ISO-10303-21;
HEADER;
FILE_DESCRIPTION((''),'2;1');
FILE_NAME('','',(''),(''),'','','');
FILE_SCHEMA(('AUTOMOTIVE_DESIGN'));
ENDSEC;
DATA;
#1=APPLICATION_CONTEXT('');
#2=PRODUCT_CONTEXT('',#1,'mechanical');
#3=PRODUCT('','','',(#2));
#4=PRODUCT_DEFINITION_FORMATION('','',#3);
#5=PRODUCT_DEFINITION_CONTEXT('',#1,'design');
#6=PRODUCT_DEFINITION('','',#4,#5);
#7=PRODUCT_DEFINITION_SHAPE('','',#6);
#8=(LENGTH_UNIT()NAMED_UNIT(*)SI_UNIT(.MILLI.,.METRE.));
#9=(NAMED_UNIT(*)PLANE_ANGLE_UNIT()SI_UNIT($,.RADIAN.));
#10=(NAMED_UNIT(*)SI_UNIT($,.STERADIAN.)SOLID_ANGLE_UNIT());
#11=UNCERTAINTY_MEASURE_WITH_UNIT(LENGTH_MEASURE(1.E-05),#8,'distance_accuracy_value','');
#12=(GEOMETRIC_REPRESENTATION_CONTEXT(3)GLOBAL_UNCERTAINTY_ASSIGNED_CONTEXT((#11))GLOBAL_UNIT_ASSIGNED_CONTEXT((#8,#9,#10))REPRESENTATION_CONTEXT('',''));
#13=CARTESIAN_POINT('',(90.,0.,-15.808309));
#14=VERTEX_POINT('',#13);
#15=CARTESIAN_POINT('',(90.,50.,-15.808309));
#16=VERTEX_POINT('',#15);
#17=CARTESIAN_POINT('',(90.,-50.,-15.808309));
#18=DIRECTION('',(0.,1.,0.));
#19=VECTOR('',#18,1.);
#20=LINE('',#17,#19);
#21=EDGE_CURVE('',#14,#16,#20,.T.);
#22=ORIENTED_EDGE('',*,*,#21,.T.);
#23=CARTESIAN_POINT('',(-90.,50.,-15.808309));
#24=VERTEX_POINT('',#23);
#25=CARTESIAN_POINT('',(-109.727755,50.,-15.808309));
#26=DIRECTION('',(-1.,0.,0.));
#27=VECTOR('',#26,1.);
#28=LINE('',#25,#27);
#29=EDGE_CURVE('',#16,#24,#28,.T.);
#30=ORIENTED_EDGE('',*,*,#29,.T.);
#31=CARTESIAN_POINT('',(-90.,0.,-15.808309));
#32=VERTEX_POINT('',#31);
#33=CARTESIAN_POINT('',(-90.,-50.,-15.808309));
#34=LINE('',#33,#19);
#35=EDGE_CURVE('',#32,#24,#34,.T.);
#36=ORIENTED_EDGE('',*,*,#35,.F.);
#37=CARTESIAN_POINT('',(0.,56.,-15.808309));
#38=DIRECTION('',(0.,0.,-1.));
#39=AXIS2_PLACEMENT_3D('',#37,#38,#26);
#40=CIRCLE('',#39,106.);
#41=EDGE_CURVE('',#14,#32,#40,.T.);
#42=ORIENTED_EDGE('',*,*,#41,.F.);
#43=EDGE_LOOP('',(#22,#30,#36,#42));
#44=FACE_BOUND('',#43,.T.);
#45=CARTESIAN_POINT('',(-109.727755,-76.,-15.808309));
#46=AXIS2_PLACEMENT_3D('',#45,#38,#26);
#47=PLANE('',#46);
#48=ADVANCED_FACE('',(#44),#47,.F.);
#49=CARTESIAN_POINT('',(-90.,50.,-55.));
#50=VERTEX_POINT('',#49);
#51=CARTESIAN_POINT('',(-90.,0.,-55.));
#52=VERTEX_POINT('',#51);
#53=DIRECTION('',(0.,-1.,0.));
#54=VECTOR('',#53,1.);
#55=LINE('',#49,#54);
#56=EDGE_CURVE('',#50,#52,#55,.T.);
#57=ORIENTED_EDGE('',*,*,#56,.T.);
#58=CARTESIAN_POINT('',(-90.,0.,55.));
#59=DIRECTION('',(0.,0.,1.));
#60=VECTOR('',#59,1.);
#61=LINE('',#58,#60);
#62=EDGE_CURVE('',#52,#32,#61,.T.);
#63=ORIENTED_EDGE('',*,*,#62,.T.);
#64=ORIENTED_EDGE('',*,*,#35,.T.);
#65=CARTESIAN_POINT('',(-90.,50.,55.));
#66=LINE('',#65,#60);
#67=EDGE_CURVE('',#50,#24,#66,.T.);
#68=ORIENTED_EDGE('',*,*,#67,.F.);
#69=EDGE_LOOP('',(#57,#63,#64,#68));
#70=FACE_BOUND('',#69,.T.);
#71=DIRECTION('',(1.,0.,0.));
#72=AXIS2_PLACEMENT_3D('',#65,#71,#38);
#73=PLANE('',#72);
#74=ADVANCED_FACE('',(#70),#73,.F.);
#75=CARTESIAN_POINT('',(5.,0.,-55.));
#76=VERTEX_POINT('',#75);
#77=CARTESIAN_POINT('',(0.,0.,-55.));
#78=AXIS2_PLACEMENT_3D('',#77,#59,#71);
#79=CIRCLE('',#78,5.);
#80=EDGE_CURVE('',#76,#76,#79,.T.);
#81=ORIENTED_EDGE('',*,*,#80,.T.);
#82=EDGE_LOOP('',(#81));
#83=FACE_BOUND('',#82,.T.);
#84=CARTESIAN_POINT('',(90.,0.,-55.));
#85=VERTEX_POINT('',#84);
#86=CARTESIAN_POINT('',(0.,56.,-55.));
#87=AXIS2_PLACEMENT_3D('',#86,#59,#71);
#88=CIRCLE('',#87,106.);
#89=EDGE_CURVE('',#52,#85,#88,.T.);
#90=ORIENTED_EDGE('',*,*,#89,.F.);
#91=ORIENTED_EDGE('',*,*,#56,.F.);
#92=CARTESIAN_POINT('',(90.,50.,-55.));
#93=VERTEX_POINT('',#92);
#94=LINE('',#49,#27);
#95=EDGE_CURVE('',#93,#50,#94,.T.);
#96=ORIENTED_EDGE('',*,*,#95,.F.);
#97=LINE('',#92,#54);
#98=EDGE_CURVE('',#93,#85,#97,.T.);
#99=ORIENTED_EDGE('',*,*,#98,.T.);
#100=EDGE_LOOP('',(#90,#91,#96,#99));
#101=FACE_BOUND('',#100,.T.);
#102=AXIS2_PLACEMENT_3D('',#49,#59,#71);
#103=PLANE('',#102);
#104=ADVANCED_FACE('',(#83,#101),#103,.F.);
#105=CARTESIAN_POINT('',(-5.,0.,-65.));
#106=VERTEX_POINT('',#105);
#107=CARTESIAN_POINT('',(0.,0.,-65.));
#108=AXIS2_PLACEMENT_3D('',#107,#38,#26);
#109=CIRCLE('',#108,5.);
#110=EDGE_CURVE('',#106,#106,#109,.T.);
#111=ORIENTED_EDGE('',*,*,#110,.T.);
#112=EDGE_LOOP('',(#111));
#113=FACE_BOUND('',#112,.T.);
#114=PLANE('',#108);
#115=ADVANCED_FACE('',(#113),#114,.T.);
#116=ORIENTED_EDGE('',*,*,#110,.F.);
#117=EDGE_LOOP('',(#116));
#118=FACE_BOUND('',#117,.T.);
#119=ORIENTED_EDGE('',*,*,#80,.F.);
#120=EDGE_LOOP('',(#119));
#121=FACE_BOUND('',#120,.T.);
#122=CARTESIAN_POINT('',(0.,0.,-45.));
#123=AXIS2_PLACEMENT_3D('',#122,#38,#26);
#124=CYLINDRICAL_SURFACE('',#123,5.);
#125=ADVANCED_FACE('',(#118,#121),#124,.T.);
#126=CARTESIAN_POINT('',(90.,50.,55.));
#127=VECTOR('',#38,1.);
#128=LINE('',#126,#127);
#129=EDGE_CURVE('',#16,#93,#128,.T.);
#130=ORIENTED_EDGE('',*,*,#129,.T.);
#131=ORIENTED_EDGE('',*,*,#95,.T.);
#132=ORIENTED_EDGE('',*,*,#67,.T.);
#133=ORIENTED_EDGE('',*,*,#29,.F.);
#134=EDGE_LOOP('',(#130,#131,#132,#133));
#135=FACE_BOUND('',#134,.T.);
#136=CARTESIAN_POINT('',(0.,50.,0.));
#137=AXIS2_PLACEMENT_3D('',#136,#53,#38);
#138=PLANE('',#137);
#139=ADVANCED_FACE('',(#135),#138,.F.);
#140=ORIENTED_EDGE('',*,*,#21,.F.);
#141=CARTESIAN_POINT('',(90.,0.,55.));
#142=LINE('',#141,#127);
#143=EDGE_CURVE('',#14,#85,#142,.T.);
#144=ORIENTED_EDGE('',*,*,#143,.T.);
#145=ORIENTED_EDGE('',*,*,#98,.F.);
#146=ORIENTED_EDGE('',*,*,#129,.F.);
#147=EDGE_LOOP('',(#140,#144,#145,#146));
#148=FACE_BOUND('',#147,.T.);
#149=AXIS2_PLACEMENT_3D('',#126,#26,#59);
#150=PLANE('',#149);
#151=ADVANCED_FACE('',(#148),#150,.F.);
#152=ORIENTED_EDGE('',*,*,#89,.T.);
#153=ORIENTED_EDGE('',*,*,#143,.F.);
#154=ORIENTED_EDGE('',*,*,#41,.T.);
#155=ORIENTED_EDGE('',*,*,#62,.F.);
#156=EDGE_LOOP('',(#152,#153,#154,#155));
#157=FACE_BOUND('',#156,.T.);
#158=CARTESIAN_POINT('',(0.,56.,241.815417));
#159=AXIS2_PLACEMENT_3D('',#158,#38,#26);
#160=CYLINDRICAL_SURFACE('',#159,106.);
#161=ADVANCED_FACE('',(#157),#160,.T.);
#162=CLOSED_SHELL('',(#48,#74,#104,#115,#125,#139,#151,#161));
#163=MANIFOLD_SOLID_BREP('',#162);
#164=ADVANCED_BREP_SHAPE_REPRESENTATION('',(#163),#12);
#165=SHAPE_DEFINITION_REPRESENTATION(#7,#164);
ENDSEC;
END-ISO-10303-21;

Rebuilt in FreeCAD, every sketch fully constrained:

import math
import FreeCAD as App
import Part
import Sketcher
Q = App.Units.Quantity

doc = App.newDocument("Part")
body = doc.addObject("PartDesign::Body", "Body")

# Sketch on XZ plane
sketch1 = body.newObject("Sketcher::SketchObject", "Sketch")
sketch1.AttachmentSupport = (doc.getObject("XZ_Plane"), [""])
sketch1.MapMode = "FlatFace"
sketch1.addGeometry([
    Part.LineSegment(App.Vector(-90, -55, 0), App.Vector(-90, 55, 0)),
    Part.LineSegment(App.Vector(-90, 55, 0), App.Vector(90, 55, 0)),
    Part.LineSegment(App.Vector(90, 55, 0), App.Vector(90, -55, 0)),
    Part.LineSegment(App.Vector(90, -55, 0), App.Vector(-90, -55, 0)),
], False)
sketch1.addConstraint([
    Sketcher.Constraint("Coincident", 0, 2, 1, 1),
    Sketcher.Constraint("Coincident", 1, 2, 2, 1),
    Sketcher.Constraint("Coincident", 2, 2, 3, 1),
    Sketcher.Constraint("Coincident", 3, 2, 0, 1),
    Sketcher.Constraint("Vertical", 0),
    Sketcher.Constraint("Horizontal", 1),
    Sketcher.Constraint("Vertical", 2),
    Sketcher.Constraint("Horizontal", 3),
    Sketcher.Constraint("Symmetric", 0, 2, 2, 2, -1, 1),
    Sketcher.Constraint("DistanceX", 1, 1, 1, 2, Q("180 mm")),
    Sketcher.Constraint("DistanceY", 0, 1, 0, 2, Q("110 mm")),
])
pad1 = body.newObject("PartDesign::Pad", "Pad")
pad1.Profile = sketch1
pad1.Length = 50
pad1.Reversed = True

# Sketch on XY plane
sketch2 = body.newObject("Sketcher::SketchObject", "Sketch001")
sketch2.AttachmentSupport = (doc.getObject("XY_Plane"), [""])
sketch2.MapMode = "FlatFace"
sketch2.AttachmentOffset = App.Placement(App.Vector(0, 0, -55), App.Rotation())
sketch2.addGeometry([
    Part.LineSegment(App.Vector(90, 0, 0), App.Vector(-90, 0, 0)),
    Part.ArcOfCircle(Part.Circle(App.Vector(0, 56, 0), App.Vector(0, 0, 1), 106), math.radians(-148.109208), math.radians(-31.890792)),
], False)
sketch2.addConstraint([
    Sketcher.Constraint("Coincident", 0, 1, 1, 2),
    Sketcher.Constraint("Coincident", 1, 1, 0, 2),
    Sketcher.Constraint("Horizontal", 0),
    Sketcher.Constraint("Symmetric", 0, 1, 1, 1, -1, 1),
    Sketcher.Constraint("Radius", 1, Q("106 mm")),
    Sketcher.Constraint("DistanceX", 0, 2, 0, 1, Q("180 mm")),
])
pad2 = body.newObject("PartDesign::Pad", "Pad001")
pad2.Profile = sketch2
pad2.Length = 110

# Sketch on XZ plane
sketch3 = body.newObject("Sketcher::SketchObject", "Sketch002")
sketch3.AttachmentSupport = (doc.getObject("XZ_Plane"), [""])
sketch3.MapMode = "FlatFace"
sketch3.AttachmentOffset = App.Placement(App.Vector(0, 0, -50), App.Rotation())
sketch3.addGeometry([
    Part.LineSegment(App.Vector(-49.118804, 55, 0), App.Vector(-90, -15.808309, 0)),
    Part.LineSegment(App.Vector(-90, -15.808309, 0), App.Vector(-90, 55, 0)),
    Part.LineSegment(App.Vector(-90, 55, 0), App.Vector(-49.118804, 55, 0)),
], False)
sketch3.addConstraint([
    Sketcher.Constraint("Coincident", 0, 2, 1, 1),
    Sketcher.Constraint("Coincident", 1, 2, 2, 1),
    Sketcher.Constraint("Coincident", 2, 2, 0, 1),
    Sketcher.Constraint("Vertical", 1),
    Sketcher.Constraint("Horizontal", 2),
    Sketcher.Constraint("Angle", 0, Q("-120 deg")),
    Sketcher.Constraint("DistanceX", 0, 2, -1, 1, Q("90 mm")),
    Sketcher.Constraint("DistanceY", -1, 1, 1, 2, Q("55 mm")),
    Sketcher.Constraint("DistanceY", 1, 1, 1, 2, Q("70.808309 mm")),
])
pocket1 = body.newObject("PartDesign::Pocket", "Pocket")
pocket1.Profile = sketch3
pocket1.Type = "ThroughAll"
pocket1.Reversed = True
doc.recompute()

mirrored = body.newObject("PartDesign::Mirrored", "Mirrored")
mirrored.Originals = [pocket1]
mirrored.MirrorPlane = (doc.getObject("YZ_Plane"), [""])
body.Tip = mirrored

# Sketch on XY plane
sketch4 = body.newObject("Sketcher::SketchObject", "Sketch003")
sketch4.AttachmentSupport = (doc.getObject("XY_Plane"), [""])
sketch4.MapMode = "FlatFace"
sketch4.AttachmentOffset = App.Placement(App.Vector(0, 0, -55), App.Rotation())
sketch4.addGeometry(Part.Circle(App.Vector(0, 0, 0), App.Vector(0, 0, 1), 5), False)
sketch4.addConstraint([
    Sketcher.Constraint("Coincident", 0, 3, -1, 1),
    Sketcher.Constraint("Diameter", 0, Q("10 mm")),
])
pad3 = body.newObject("PartDesign::Pad", "Pad002")
pad3.Profile = sketch4
pad3.Type = "TwoLengths"
pad3.Length = 10
pad3.Length2 = 10
pad3.Reversed = True

# Sketch on an angled plane
sketch5 = body.newObject("Sketcher::SketchObject", "Sketch004")
sketch5.Placement = App.Placement(App.Vector(-60.654801, 0, 35.019066), App.Rotation(App.Vector(0.5, 0, 0.866025404), App.Vector(0, 1, 0), App.Vector(-0.866025404, 0, 0.5), "ZXY"))
sketch5.addGeometry([
    Part.ArcOfCircle(Part.Circle(App.Vector(-20.965161, 17.942577, 0), App.Vector(0, 0, 1), 25), math.radians(-90), math.radians(90)),
    Part.LineSegment(App.Vector(-20.965161, 42.942577, 0), App.Vector(-20.965161, -7.057424, 0)),
], False)
sketch5.addGeometry(Part.LineSegment(App.Vector(-20.965161, 42.942577, 0), App.Vector(-20.965161, -7.057424, 0)), True)  # axis
sketch5.addConstraint([
    Sketcher.Constraint("Coincident", 0, 1, 1, 2),
    Sketcher.Constraint("Coincident", 1, 1, 0, 2),
    Sketcher.Constraint("Vertical", 1),
    Sketcher.Constraint("Vertical", 2),
    Sketcher.Constraint("Coincident", 2, 1, 1, 1),
    Sketcher.Constraint("Equal", 1, 2),
    Sketcher.Constraint("Radius", 0, Q("25 mm")),
    Sketcher.Constraint("DistanceX", 0, 3, -1, 1, Q("20.965161 mm")),
    Sketcher.Constraint("DistanceX", 0, 1, -1, 1, Q("20.965161 mm")),
    Sketcher.Constraint("DistanceY", -1, 1, 0, 3, Q("17.942577 mm")),
])
revolution = body.newObject("PartDesign::Revolution", "Revolution")
revolution.Profile = sketch5
revolution.ReferenceAxis = (sketch5, ["Axis0"])
revolution.Angle = 360
doc.recompute()

mirrored2 = body.newObject("PartDesign::Mirrored", "Mirrored001")
mirrored2.Originals = [revolution]
mirrored2.MirrorPlane = (doc.getObject("YZ_Plane"), [""])
body.Tip = mirrored2

# Sketch on XZ plane
sketch6 = body.newObject("Sketcher::SketchObject", "Sketch005")
sketch6.AttachmentSupport = (doc.getObject("XZ_Plane"), [""])
sketch6.MapMode = "FlatFace"
sketch6.AttachmentOffset = App.Placement(App.Vector(0, 0, -50), App.Rotation())
sketch6.addGeometry([
    Part.LineSegment(App.Vector(-109.727755, -15.808309, 0), App.Vector(-109.727755, 56.071104, 0)),
    Part.LineSegment(App.Vector(-109.727755, 56.071104, 0), App.Vector(109.060311, 56.071104, 0)),
    Part.LineSegment(App.Vector(109.060311, 56.071104, 0), App.Vector(109.060311, -15.808309, 0)),
    Part.LineSegment(App.Vector(109.060311, -15.808309, 0), App.Vector(-109.727755, -15.808309, 0)),
], False)
sketch6.addConstraint([
    Sketcher.Constraint("Coincident", 0, 2, 1, 1),
    Sketcher.Constraint("Coincident", 1, 2, 2, 1),
    Sketcher.Constraint("Coincident", 2, 2, 3, 1),
    Sketcher.Constraint("Coincident", 3, 2, 0, 1),
    Sketcher.Constraint("Vertical", 0),
    Sketcher.Constraint("Horizontal", 1),
    Sketcher.Constraint("Vertical", 2),
    Sketcher.Constraint("Horizontal", 3),
    Sketcher.Constraint("DistanceX", 1, 1, 1, 2, Q("218.788065 mm")),
    Sketcher.Constraint("DistanceY", 0, 1, 0, 2, Q("71.879413 mm")),
    Sketcher.Constraint("DistanceX", -1, 1, 1, 2, Q("109.060311 mm")),
    Sketcher.Constraint("DistanceY", 2, 2, -1, 1, Q("15.808309 mm")),
])
pocket2 = body.newObject("PartDesign::Pocket", "Pocket001")
pocket2.Profile = sketch6
pocket2.Length = 126
pocket2.Reversed = True

doc.recompute()
